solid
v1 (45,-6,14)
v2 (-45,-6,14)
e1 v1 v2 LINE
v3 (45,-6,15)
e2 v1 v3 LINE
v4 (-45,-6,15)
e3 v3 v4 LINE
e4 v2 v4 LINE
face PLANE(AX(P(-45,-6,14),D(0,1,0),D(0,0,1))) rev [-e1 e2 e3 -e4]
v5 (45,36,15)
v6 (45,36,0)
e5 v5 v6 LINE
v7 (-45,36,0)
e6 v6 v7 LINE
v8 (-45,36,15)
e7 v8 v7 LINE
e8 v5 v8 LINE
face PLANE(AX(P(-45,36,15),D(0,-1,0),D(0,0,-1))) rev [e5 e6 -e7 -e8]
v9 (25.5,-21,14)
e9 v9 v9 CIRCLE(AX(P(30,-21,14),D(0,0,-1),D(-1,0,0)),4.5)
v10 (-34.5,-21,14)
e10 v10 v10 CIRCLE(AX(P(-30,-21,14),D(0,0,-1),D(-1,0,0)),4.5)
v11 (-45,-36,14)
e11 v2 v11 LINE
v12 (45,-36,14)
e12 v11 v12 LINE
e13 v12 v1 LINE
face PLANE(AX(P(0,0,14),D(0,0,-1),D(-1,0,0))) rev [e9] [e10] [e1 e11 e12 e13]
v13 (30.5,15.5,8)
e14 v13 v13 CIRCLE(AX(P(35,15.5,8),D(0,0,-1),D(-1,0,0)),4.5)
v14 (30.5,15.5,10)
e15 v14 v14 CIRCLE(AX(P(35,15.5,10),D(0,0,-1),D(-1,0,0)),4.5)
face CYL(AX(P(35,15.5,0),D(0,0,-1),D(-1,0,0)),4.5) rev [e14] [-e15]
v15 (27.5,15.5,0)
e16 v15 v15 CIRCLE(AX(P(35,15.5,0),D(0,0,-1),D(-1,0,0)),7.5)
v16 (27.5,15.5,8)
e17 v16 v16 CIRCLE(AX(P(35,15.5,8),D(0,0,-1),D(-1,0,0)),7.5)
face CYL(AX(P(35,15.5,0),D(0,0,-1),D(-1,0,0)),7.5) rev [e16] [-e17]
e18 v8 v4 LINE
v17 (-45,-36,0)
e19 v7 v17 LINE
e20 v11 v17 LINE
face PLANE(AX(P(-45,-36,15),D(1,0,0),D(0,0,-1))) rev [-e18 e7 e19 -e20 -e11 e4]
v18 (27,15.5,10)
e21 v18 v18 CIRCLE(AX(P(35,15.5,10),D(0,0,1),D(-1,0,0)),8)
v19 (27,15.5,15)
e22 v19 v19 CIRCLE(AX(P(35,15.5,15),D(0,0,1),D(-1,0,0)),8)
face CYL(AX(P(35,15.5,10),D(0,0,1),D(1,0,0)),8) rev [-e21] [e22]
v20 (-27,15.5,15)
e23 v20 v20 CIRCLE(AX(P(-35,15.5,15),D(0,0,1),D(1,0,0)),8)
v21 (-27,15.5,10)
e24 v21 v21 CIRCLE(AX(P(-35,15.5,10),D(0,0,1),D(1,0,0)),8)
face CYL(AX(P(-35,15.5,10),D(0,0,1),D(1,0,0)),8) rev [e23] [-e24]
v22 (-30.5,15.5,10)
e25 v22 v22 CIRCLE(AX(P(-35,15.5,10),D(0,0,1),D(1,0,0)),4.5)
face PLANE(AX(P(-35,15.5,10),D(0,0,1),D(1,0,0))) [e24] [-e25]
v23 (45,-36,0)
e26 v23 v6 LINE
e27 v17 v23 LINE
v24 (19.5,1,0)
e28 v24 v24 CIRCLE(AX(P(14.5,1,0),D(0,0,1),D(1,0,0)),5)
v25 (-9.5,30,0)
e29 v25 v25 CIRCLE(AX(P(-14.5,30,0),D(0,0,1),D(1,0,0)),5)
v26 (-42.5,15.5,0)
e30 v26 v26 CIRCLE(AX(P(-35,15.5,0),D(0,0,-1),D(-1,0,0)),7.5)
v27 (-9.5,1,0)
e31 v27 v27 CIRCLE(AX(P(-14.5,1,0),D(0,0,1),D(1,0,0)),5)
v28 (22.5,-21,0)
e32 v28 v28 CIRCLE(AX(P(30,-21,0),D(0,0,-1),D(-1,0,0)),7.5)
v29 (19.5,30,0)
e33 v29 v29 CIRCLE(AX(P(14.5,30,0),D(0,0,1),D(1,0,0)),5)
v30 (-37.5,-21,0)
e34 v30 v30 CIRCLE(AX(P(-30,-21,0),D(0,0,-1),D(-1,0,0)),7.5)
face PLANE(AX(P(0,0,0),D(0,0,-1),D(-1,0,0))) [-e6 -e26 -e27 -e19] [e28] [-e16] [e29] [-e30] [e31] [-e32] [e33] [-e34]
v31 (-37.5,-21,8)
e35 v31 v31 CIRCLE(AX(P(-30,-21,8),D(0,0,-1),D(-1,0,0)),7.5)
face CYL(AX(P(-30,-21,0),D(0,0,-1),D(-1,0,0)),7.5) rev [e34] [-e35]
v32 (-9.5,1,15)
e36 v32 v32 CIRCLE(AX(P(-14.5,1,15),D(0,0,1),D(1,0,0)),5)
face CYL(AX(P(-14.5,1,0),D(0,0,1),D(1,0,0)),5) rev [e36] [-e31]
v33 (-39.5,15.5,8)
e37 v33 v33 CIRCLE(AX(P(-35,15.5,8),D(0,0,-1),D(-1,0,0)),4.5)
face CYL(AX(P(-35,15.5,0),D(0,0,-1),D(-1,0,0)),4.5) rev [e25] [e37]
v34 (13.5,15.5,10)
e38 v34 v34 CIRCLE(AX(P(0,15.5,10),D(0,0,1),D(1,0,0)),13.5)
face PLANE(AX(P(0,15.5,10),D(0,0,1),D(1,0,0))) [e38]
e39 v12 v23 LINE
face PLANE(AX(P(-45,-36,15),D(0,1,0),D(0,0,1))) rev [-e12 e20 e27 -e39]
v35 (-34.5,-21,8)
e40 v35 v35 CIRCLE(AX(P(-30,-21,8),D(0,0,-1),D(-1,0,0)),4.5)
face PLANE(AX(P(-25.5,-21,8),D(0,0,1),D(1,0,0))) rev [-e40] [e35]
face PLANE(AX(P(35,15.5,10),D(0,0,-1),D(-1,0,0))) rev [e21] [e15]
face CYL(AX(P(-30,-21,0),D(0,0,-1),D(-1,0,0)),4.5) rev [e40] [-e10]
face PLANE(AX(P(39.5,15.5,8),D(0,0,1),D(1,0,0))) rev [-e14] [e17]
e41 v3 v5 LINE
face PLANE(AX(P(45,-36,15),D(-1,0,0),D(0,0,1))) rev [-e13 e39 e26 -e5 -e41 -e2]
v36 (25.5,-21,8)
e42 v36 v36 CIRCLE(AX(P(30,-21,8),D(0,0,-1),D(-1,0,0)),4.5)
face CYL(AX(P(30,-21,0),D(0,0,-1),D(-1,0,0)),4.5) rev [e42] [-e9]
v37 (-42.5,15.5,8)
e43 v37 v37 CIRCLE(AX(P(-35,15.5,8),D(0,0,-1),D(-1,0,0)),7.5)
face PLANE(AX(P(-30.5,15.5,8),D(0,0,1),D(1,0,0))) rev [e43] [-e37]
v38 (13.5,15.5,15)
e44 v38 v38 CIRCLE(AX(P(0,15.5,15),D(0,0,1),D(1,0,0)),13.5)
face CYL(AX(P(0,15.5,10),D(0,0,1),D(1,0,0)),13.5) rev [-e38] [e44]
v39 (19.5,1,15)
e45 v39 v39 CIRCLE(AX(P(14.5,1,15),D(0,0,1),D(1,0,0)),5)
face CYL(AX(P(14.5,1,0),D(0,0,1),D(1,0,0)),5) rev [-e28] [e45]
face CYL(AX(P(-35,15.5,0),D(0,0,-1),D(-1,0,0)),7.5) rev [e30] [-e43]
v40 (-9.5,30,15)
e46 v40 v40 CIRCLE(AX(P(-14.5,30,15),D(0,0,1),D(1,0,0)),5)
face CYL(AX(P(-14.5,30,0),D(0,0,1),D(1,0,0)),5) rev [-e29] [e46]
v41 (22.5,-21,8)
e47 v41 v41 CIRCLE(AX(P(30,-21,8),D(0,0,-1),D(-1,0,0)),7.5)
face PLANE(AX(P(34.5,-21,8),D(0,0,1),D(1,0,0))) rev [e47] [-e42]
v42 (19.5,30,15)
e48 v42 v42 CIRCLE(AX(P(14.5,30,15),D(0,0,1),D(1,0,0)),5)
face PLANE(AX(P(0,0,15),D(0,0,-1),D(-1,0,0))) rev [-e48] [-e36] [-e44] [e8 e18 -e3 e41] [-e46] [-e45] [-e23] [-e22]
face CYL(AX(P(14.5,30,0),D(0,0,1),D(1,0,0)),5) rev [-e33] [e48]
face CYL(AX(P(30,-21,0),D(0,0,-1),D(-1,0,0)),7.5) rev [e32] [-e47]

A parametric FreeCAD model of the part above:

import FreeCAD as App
import Part
import Sketcher

doc = App.newDocument("Part")
body = doc.addObject("PartDesign::Body", "Body")

# Sketch on XY plane
sketch1 = body.newObject("Sketcher::SketchObject", "Sketch")
sketch1.AttachmentSupport = (doc.getObject("XY_Plane"), [""])
sketch1.MapMode = "FlatFace"
sketch1.addGeometry([
    Part.LineSegment(App.Vector(-45, 36, 0), App.Vector(-45, -36, 0)),
    Part.LineSegment(App.Vector(-45, -36, 0), App.Vector(45, -36, 0)),
    Part.LineSegment(App.Vector(45, -36, 0), App.Vector(45, 36, 0)),
    Part.LineSegment(App.Vector(45, 36, 0), App.Vector(-45, 36, 0)),
], False)
sketch1.addConstraint([
    Sketcher.Constraint("Coincident", 0, 2, 1, 1),
    Sketcher.Constraint("Coincident", 1, 2, 2, 1),
    Sketcher.Constraint("Coincident", 2, 2, 3, 1),
    Sketcher.Constraint("Coincident", 3, 2, 0, 1),
    Sketcher.Constraint("Vertical", 0),
    Sketcher.Constraint("Horizontal", 1),
    Sketcher.Constraint("Vertical", 2),
    Sketcher.Constraint("Horizontal", 3),
    Sketcher.Constraint("Symmetric", 0, 2, 2, 2, -1, 1),
    Sketcher.Constraint("DistanceX", 1, 1, 1, 2, 90.0),
    Sketcher.Constraint("DistanceY", 0, 2, 0, 1, 72.0),
])
pad1 = body.newObject("PartDesign::Pad", "Pad")
pad1.Profile = sketch1
pad1.Length = 15

# Sketch on XY plane
sketch2 = body.newObject("Sketcher::SketchObject", "Sketch001")
sketch2.AttachmentSupport = (doc.getObject("XY_Plane"), [""])
sketch2.MapMode = "FlatFace"
sketch2.AttachmentOffset = App.Placement(App.Vector(0, 0, 15), App.Rotation())
sketch2.addGeometry([
    Part.LineSegment(App.Vector(-45, -6, 0), App.Vector(-45, -36, 0)),
    Part.LineSegment(App.Vector(-45, -36, 0), App.Vector(45, -36, 0)),
    Part.LineSegment(App.Vector(45, -36, 0), App.Vector(45, -6, 0)),
    Part.LineSegment(App.Vector(45, -6, 0), App.Vector(-45, -6, 0)),
], False)
sketch2.addConstraint([
    Sketcher.Constraint("Coincident", 0, 2, 1, 1),
    Sketcher.Constraint("Coincident", 1, 2, 2, 1),
    Sketcher.Constraint("Coincident", 2, 2, 3, 1),
    Sketcher.Constraint("Coincident", 3, 2, 0, 1),
    Sketcher.Constraint("Vertical", 0),
    Sketcher.Constraint("Horizontal", 1),
    Sketcher.Constraint("Vertical", 2),
    Sketcher.Constraint("Horizontal", 3),
    Sketcher.Constraint("DistanceX", 1, 1, 1, 2, 90.0),
    Sketcher.Constraint("DistanceY", 0, 2, 0, 1, 30.0),
    Sketcher.Constraint("DistanceX", 0, 2, -1, 1, 45.0),
    Sketcher.Constraint("DistanceY", 0, 2, -1, 1, 36.0),
])
pocket1 = body.newObject("PartDesign::Pocket", "Pocket")
pocket1.Profile = sketch2
pocket1.Length = 1

# Sketch on XY plane
sketch3 = body.newObject("Sketcher::SketchObject", "Sketch002")
sketch3.AttachmentSupport = (doc.getObject("XY_Plane"), [""])
sketch3.MapMode = "FlatFace"
sketch3.AttachmentOffset = App.Placement(App.Vector(0, 0, 15), App.Rotation())
sketch3.addGeometry([
    Part.Circle(App.Vector(-14, 30, 0), App.Vector(0, 0, 1), 5),
    Part.Circle(App.Vector(14, 30, 0), App.Vector(0, 0, 1), 5),
    Part.Circle(App.Vector(14, 1, 0), App.Vector(0, 0, 1), 5),
    Part.Circle(App.Vector(-14, 1, 0), App.Vector(0, 0, 1), 5),
], False)
sketch3.addConstraint([
    Sketcher.Constraint("Equal", 0, 1),
    Sketcher.Constraint("Equal", 1, 2),
    Sketcher.Constraint("Equal", 2, 3),
    Sketcher.Constraint("Symmetric", 0, 3, 1, 3, -2),
    Sketcher.Constraint("Symmetric", 2, 3, 3, 3, -2),
    Sketcher.Constraint("Vertical", 1, 3, 2, 3),
    Sketcher.Constraint("Diameter", 0, 10.0),
    Sketcher.Constraint("DistanceY", -1, 1, 0, 3, 30.0),
    Sketcher.Constraint("DistanceY", -1, 1, 2, 3, 1.0),
    Sketcher.Constraint("DistanceX", 0, 3, 1, 3, 29.0),
])
pocket2 = body.newObject("PartDesign::Pocket", "Pocket001")
pocket2.Profile = sketch3
pocket2.Type = "ThroughAll"

# Sketch on XY plane
sketch4 = body.newObject("Sketcher::SketchObject", "Sketch003")
sketch4.AttachmentSupport = (doc.getObject("XY_Plane"), [""])
sketch4.MapMode = "FlatFace"
sketch4.AttachmentOffset = App.Placement(App.Vector(0, 0, 15), App.Rotation())
sketch4.addGeometry([
    Part.Circle(App.Vector(0, 16, 0), App.Vector(0, 0, 1), 14),
    Part.Circle(App.Vector(-35, 16, 0), App.Vector(0, 0, 1), 8),
    Part.Circle(App.Vector(35, 16, 0), App.Vector(0, 0, 1), 8),
], False)
sketch4.addConstraint([
    Sketcher.Constraint("Equal", 1, 2),
    Sketcher.Constraint("Symmetric", 1, 3, 2, 3, -2),
    Sketcher.Constraint("PointOnObject", 0, 3, -2),
    Sketcher.Constraint("Horizontal", 0, 3, 1, 3),
    Sketcher.Constraint("Diameter", 0, 27.0),
    Sketcher.Constraint("Diameter", 1, 16.0),
    Sketcher.Constraint("DistanceX", 1, 3, -1, 1, 35.0),
    Sketcher.Constraint("DistanceY", -1, 1, 0, 3, 15.5),
])
pocket3 = body.newObject("PartDesign::Pocket", "Pocket002")
pocket3.Profile = sketch4
pocket3.Length = 5

# Sketch on XY plane
sketch5 = body.newObject("Sketcher::SketchObject", "Sketch004")
sketch5.AttachmentSupport = (doc.getObject("XY_Plane"), [""])
sketch5.MapMode = "FlatFace"
sketch5.addGeometry([
    Part.Circle(App.Vector(-30, -21, 0), App.Vector(0, 0, 1), 4.5),
    Part.Circle(App.Vector(30, -21, 0), App.Vector(0, 0, 1), 4.5),
    Part.Circle(App.Vector(35, 15.5, 0), App.Vector(0, 0, 1), 4.5),
    Part.Circle(App.Vector(-35, 15.5, 0), App.Vector(0, 0, 1), 4.5),
], False)
sketch5.addConstraint([
    Sketcher.Constraint("Equal", 0, 1),
    Sketcher.Constraint("Equal", 1, 2),
    Sketcher.Constraint("Equal", 2, 3),
    Sketcher.Constraint("Symmetric", 0, 3, 1, 3, -2),
    Sketcher.Constraint("Symmetric", 2, 3, 3, 3, -2),
    Sketcher.Constraint("Diameter", 0, 9.0),
    Sketcher.Constraint("DistanceX", 0, 3, -1, 1, 30.0),
    Sketcher.Constraint("DistanceY", 0, 3, -1, 1, 21.0),
    Sketcher.Constraint("DistanceX", -1, 1, 2, 3, 35.0),
    Sketcher.Constraint("DistanceY", -1, 1, 2, 3, 15.5),
])
doc.recompute()
hole = body.newObject("PartDesign::Hole", "Hole")
hole.Profile = sketch5
hole.ThreadType = "None"
hole.Diameter = 9
hole.DepthType = "Dimension"
hole.Depth = 15
hole.DrillPoint = "Angled"
hole.DrillPointAngle = 118
hole.HoleCutType = "Counterbore"
hole.HoleCutDiameter = 15
hole.HoleCutDepth = 8
hole.Reversed = True

doc.recompute()
